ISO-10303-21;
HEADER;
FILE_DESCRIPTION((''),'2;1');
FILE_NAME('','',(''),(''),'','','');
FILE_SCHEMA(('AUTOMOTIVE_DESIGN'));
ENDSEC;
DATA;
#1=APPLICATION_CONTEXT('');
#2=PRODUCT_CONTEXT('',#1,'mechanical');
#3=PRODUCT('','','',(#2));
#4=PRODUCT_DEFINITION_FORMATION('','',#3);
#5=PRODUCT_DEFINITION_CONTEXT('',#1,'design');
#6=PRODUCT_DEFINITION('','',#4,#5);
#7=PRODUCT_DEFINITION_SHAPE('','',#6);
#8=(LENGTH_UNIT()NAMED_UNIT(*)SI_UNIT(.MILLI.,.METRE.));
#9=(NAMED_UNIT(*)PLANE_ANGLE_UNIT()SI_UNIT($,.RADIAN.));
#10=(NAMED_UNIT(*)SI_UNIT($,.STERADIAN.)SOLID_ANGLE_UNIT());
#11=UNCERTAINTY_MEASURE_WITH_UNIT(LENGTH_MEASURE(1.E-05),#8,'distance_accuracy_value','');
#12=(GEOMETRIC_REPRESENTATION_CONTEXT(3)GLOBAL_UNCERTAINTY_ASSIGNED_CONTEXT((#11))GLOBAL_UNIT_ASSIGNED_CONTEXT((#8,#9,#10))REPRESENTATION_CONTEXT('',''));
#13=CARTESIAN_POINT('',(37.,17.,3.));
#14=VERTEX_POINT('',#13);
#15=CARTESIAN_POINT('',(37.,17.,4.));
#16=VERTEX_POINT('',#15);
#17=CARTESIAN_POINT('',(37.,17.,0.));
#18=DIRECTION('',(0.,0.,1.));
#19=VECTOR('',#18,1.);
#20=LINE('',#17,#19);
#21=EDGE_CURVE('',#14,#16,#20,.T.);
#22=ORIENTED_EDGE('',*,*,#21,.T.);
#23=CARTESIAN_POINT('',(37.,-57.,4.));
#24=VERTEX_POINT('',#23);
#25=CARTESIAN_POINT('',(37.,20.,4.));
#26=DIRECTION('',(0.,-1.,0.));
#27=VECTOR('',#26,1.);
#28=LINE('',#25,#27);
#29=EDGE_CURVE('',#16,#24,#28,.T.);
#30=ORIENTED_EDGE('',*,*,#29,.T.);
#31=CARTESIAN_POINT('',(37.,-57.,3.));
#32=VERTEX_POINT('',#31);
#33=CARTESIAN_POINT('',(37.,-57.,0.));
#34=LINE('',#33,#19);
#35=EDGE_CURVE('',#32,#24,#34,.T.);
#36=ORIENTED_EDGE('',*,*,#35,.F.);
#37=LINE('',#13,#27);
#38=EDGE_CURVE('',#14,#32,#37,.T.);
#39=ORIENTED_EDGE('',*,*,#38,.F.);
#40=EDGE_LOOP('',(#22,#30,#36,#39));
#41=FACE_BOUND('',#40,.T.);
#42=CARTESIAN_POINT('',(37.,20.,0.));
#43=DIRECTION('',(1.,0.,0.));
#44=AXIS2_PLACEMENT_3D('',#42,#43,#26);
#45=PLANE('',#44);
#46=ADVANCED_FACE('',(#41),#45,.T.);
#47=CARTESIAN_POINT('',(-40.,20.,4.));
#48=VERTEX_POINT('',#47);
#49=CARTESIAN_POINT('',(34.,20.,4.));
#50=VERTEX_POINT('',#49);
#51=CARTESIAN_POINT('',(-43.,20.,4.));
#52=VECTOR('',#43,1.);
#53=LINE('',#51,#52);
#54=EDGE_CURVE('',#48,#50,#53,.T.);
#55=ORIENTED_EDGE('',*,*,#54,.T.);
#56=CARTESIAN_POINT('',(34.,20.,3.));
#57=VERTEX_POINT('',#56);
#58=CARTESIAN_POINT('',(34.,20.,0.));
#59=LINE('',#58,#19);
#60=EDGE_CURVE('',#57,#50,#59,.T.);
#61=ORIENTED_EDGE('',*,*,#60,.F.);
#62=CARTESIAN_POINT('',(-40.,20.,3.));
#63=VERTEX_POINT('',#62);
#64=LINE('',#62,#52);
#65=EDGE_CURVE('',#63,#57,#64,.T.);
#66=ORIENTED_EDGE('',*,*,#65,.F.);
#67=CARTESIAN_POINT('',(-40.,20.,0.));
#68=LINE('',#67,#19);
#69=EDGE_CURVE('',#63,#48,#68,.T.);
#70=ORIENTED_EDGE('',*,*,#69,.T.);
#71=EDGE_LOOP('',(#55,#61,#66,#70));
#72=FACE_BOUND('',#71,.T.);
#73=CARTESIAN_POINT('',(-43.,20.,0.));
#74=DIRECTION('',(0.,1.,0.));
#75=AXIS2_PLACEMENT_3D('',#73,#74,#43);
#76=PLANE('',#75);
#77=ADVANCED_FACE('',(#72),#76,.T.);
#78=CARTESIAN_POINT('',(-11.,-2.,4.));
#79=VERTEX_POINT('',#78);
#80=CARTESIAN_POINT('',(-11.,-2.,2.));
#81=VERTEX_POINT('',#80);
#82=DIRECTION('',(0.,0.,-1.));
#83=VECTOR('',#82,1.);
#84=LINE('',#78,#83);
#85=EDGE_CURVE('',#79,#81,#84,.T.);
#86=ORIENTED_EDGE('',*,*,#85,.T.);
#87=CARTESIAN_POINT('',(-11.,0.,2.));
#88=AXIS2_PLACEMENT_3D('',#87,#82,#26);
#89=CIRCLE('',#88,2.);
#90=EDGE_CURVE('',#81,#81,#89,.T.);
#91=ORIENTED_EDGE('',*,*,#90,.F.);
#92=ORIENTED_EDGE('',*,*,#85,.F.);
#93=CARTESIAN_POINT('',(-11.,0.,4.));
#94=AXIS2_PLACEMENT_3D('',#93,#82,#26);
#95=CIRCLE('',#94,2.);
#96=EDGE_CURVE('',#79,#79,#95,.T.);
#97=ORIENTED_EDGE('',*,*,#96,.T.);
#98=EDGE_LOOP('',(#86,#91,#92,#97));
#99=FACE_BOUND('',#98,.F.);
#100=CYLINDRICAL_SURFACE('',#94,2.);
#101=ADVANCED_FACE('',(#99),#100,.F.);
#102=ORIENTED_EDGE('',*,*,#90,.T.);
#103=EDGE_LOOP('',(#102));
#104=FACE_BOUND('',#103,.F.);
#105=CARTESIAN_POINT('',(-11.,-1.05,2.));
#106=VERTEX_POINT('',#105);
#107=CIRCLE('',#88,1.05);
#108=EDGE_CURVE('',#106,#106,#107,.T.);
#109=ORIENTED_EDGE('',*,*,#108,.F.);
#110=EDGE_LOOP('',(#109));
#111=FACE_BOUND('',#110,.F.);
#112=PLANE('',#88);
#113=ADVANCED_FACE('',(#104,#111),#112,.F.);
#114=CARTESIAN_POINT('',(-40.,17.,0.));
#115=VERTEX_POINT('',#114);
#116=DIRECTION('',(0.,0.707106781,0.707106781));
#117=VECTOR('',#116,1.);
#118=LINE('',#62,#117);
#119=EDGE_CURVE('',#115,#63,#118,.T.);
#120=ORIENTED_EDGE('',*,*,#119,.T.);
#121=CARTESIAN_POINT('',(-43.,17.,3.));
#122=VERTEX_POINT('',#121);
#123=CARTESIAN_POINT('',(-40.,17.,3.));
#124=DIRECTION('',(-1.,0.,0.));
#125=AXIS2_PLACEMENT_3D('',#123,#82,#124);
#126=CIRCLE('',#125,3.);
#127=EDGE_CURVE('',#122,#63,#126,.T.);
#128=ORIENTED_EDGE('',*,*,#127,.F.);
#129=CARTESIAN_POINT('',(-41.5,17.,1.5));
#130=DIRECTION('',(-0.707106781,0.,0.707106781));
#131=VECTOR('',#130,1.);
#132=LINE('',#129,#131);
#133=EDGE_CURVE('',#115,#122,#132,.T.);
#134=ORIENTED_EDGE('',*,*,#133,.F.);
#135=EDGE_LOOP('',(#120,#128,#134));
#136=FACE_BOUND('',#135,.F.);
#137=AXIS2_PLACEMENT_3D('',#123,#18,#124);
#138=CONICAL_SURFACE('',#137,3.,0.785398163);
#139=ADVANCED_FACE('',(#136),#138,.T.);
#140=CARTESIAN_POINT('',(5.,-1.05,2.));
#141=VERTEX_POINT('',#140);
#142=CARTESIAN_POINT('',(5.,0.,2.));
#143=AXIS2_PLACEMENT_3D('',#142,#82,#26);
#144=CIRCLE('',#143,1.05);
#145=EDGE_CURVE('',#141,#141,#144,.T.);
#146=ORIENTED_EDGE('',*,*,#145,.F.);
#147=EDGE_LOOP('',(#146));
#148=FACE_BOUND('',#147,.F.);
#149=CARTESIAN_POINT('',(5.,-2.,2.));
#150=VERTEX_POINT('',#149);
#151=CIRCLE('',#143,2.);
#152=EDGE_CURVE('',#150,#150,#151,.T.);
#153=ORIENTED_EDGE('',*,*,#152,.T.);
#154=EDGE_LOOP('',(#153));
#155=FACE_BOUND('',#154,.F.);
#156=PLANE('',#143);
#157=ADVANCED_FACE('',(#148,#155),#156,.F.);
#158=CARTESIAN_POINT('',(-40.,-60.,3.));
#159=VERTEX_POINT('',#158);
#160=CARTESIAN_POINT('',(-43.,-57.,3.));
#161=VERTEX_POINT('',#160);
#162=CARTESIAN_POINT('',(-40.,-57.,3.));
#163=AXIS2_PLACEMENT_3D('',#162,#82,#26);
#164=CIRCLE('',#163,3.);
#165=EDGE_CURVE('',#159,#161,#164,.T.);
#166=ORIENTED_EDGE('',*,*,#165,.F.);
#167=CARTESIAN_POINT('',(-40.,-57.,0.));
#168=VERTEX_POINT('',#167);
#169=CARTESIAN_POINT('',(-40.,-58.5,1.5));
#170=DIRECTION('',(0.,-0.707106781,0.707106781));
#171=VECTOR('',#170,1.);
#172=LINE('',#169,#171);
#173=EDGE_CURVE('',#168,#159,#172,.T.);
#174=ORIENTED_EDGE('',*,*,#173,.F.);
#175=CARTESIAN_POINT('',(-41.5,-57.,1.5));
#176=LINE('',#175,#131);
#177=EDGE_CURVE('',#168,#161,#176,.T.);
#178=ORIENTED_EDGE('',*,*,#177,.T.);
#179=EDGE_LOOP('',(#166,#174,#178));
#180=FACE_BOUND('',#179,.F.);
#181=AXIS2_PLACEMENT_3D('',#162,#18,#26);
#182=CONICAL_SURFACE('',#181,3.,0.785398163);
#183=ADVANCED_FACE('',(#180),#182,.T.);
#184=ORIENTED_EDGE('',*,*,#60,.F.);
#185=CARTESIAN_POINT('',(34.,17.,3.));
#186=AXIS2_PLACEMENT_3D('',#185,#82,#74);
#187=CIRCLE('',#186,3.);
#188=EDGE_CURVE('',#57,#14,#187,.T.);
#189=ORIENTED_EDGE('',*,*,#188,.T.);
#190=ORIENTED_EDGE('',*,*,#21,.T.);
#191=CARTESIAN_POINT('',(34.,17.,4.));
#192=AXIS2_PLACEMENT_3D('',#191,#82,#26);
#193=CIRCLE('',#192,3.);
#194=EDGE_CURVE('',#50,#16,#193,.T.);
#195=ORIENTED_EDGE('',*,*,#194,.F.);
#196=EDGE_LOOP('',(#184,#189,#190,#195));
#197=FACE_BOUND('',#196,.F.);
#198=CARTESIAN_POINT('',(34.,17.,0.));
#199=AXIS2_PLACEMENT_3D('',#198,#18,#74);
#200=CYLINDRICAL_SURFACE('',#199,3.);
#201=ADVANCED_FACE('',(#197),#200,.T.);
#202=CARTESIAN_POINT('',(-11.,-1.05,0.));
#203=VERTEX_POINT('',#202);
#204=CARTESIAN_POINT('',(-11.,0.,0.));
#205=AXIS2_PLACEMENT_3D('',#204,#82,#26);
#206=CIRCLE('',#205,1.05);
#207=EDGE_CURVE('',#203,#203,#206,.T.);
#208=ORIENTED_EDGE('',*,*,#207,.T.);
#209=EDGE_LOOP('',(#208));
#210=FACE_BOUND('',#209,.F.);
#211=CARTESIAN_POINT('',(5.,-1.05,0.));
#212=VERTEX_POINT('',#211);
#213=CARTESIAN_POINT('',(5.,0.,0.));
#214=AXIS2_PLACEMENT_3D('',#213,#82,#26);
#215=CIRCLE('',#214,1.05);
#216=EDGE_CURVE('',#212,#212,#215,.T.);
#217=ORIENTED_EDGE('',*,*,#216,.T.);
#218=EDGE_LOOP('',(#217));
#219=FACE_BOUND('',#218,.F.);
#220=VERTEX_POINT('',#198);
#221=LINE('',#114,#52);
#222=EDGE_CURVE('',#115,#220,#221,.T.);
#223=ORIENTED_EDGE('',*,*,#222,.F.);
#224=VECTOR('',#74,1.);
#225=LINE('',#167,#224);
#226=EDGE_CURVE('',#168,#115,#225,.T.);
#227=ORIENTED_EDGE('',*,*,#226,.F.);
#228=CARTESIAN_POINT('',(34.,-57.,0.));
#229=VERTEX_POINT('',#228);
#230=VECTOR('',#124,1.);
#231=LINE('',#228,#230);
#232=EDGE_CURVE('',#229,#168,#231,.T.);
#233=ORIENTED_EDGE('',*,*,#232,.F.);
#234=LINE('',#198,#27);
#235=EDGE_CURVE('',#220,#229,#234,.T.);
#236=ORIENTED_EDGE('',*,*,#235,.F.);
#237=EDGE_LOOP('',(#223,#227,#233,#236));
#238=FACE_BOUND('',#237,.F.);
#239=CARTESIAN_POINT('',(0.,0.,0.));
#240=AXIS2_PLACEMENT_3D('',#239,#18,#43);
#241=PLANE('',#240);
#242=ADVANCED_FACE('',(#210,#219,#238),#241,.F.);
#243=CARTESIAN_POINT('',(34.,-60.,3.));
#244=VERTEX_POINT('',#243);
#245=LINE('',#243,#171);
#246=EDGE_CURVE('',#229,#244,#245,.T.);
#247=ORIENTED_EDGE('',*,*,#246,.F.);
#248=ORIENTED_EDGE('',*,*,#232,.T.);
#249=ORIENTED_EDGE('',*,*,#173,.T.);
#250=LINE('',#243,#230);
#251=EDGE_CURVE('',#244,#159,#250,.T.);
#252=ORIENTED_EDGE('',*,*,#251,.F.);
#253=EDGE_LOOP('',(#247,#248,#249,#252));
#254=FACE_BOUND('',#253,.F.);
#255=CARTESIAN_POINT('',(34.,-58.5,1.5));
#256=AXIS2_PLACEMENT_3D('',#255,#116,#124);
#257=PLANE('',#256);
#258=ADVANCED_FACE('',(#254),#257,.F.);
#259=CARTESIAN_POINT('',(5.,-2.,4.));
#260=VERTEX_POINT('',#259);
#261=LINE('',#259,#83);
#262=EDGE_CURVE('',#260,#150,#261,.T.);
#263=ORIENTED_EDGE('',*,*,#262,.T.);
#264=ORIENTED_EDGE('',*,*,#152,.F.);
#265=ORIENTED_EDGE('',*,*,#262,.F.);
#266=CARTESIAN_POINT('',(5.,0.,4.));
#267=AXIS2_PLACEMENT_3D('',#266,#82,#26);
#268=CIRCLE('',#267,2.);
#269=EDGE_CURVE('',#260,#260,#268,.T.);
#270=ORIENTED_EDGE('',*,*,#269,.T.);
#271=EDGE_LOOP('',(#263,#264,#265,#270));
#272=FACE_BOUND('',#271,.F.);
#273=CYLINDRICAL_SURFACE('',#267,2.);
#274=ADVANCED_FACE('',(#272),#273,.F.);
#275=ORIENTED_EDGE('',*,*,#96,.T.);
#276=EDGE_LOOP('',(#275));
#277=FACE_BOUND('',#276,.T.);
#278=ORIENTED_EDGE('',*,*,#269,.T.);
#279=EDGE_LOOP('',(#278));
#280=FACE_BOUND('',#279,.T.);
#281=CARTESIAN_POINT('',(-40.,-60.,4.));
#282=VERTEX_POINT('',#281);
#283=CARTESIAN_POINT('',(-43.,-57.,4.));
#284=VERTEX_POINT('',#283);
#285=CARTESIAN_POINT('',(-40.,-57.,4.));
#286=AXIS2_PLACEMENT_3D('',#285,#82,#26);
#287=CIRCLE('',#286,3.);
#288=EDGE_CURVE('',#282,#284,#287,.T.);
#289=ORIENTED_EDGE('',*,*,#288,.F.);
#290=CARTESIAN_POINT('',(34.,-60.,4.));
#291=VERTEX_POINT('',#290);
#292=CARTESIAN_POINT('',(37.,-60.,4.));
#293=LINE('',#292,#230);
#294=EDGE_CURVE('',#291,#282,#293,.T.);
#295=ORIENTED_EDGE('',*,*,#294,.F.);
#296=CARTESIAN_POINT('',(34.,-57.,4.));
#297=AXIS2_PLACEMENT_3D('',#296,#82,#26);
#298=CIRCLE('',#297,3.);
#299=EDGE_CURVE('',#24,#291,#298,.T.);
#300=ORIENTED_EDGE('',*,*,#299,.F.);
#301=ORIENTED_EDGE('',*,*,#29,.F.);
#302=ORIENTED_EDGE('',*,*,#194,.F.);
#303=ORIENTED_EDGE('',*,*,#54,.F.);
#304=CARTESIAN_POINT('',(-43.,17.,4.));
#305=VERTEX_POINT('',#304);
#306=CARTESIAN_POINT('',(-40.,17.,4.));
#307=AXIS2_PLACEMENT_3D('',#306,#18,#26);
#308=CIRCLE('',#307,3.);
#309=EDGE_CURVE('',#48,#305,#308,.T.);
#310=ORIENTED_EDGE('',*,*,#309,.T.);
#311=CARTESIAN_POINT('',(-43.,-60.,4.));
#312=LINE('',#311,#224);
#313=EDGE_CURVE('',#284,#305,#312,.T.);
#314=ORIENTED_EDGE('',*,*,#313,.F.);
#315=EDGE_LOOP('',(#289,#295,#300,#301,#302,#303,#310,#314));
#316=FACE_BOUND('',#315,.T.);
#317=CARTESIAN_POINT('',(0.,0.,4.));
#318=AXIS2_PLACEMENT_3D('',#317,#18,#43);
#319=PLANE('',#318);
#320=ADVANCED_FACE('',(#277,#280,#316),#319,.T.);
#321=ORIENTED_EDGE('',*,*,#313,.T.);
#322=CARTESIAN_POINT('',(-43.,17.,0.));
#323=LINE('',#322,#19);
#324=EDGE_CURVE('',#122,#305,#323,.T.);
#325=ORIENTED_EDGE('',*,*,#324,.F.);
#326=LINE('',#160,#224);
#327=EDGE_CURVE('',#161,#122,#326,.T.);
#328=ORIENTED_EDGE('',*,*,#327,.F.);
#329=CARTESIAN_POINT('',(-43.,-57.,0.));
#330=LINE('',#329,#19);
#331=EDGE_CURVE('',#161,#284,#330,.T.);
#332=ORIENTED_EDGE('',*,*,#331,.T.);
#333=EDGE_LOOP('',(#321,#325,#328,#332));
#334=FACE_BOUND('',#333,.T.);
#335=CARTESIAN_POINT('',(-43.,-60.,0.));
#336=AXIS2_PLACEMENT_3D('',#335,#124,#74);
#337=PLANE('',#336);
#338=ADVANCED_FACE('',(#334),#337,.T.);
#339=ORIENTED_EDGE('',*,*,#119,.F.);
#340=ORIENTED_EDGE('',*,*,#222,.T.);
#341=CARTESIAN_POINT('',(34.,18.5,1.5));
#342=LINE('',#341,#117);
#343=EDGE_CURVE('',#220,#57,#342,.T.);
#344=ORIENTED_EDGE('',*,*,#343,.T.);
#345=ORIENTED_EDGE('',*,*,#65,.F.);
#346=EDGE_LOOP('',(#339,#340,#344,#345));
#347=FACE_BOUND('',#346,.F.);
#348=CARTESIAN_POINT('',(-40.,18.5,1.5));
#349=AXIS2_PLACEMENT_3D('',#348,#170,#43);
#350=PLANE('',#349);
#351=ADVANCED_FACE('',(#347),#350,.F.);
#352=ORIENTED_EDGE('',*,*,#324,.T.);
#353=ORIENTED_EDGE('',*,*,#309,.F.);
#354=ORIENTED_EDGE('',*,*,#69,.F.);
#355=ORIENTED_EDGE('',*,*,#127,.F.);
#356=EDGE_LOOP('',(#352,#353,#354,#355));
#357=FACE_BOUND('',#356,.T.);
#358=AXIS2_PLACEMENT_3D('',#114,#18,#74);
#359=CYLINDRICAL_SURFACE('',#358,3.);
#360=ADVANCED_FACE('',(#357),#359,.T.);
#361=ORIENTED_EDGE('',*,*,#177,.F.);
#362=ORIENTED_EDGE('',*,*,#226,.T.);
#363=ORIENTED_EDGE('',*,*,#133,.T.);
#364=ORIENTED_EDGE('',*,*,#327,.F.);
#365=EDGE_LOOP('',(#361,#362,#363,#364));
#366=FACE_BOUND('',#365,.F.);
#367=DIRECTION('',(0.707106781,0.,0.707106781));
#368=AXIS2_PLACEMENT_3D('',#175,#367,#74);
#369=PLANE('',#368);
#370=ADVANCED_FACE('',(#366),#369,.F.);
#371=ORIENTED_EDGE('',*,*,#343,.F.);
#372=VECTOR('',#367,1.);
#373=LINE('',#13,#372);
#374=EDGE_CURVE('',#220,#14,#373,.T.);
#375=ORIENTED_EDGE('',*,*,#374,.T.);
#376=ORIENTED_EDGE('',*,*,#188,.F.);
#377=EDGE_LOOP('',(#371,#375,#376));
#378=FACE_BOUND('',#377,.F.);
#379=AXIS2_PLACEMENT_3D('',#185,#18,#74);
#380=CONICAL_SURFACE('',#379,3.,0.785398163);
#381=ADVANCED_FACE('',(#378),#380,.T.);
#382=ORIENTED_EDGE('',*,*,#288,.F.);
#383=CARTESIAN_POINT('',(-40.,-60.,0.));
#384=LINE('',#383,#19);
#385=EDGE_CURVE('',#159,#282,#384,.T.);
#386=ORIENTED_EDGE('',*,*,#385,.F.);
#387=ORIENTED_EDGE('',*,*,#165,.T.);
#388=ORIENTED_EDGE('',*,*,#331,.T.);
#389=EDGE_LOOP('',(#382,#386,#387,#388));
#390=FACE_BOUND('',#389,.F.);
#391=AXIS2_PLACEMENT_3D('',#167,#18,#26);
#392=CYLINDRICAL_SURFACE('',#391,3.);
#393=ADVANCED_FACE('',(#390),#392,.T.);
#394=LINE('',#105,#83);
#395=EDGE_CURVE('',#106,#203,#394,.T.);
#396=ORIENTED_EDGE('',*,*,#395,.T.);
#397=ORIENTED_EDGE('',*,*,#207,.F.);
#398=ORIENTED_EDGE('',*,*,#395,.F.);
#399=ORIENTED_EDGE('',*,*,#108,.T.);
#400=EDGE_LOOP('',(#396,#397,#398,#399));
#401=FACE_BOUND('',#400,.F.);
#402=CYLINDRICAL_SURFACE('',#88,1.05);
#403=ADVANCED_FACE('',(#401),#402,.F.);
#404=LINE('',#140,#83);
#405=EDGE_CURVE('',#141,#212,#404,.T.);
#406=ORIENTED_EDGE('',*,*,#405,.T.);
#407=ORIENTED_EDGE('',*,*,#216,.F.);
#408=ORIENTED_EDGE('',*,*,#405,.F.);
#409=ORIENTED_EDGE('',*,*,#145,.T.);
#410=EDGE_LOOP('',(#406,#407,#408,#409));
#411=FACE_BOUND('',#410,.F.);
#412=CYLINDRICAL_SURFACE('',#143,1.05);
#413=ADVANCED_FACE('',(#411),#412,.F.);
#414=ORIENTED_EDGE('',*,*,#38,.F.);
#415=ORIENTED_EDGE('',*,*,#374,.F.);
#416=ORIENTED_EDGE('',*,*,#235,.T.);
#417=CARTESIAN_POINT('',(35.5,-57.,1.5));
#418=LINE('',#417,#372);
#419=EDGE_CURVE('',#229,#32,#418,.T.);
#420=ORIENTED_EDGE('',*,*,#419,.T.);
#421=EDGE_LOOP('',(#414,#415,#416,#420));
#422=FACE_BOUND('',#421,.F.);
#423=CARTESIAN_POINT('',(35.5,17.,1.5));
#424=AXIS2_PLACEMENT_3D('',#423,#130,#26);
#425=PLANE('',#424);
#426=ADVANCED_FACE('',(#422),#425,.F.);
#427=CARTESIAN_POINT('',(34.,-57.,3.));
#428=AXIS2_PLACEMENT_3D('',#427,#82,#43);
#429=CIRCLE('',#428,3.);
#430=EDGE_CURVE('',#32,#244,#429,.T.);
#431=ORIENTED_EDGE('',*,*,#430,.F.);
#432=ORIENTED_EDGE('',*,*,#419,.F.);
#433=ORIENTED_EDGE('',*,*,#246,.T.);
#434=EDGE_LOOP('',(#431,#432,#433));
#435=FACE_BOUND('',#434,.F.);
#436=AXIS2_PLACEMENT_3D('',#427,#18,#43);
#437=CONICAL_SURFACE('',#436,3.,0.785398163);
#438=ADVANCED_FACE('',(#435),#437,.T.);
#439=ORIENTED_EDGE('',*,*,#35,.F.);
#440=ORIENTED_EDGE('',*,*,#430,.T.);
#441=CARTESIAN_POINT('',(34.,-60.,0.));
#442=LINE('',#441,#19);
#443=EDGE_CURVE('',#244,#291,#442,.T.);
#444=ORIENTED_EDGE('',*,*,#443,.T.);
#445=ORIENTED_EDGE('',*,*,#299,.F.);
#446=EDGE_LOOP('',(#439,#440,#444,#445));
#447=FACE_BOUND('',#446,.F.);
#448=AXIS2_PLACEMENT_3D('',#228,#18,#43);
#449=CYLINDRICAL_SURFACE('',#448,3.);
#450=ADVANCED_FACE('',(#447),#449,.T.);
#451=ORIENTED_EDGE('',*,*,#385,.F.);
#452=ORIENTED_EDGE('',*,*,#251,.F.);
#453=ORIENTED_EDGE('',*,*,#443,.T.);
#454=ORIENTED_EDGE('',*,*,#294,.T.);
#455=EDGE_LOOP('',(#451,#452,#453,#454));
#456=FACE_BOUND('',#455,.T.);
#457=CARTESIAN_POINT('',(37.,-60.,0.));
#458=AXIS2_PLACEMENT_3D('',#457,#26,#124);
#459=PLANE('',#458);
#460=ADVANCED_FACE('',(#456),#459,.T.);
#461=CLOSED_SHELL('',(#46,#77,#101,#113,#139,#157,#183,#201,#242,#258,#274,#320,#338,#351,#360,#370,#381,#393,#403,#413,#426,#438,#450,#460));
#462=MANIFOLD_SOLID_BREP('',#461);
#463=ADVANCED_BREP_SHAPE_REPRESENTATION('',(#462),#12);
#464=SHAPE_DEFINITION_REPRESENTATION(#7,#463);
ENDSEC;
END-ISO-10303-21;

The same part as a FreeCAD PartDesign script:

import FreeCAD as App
import Part
import Sketcher

V = App.Vector
Q = App.Units.Quantity


def edges_at(feature, points):
    """Names of the edges that pass closest to the given points."""
    edges = feature.Shape.Edges
    near = lambda p: min(range(len(edges)), key=lambda i: edges[i].distToShape(Part.Vertex(*p))[0])
    return sorted({f"Edge{near(p) + 1}" for p in points})


def add_polygon(sketch, points):
    """Adds a closed chain of lines whose ends are joined by coincident constraints."""
    first, n = sketch.GeometryCount, len(points)
    for a, b in zip(points, points[1:] + points[:1]):
        sketch.addGeometry(Part.LineSegment(App.Vector(*a, 0), App.Vector(*b, 0)), False)
    for i in range(n):
        sketch.addConstraint(Sketcher.Constraint("Coincident", first + i, 2, first + (i + 1) % n, 1))

doc = App.newDocument("Part")
body = doc.addObject("PartDesign::Body", "Body")

sketch1 = doc.addObject("Sketcher::SketchObject", "Sketch")
body.addObject(sketch1)
sketch1.AttachmentSupport = (doc.XY_Plane, [""])
sketch1.MapMode = "FlatFace"
add_polygon(sketch1, [(37, 20), (-43, 20), (-43, -60), (37, -60)])
sketch1.addConstraint([
    Sketcher.Constraint("Horizontal", 0),
    Sketcher.Constraint("Vertical", 1),
    Sketcher.Constraint("Horizontal", 2),
    Sketcher.Constraint("Vertical", 3),
    Sketcher.Constraint("Equal", 2, 1),
    Sketcher.Constraint("DistanceX", 0, 2, 0, 1, Q("80 mm")),
    Sketcher.Constraint("DistanceY", -1, 1, 0, 2, Q("20 mm")),
    Sketcher.Constraint("DistanceX", 0, 2, -1, 1, Q("43 mm")),
])
pad1 = doc.addObject("PartDesign::Pad", "Pad")
body.addObject(pad1)
pad1.Profile = sketch1
pad1.Length = 4
doc.recompute()

fillet = doc.addObject("PartDesign::Fillet", "Fillet")
body.addObject(fillet)
fillet.Base = (pad1, edges_at(pad1, [
    (-43, 20, 2),
    (-43, -60, 2),
    (37, -60, 2),
    (37, 20, 2),
]))
fillet.Radius = 3

sketch2 = doc.addObject("Sketcher::SketchObject", "Sketch001")
body.addObject(sketch2)
sketch2.AttachmentSupport = (doc.XY_Plane, [""])
sketch2.MapMode = "FlatFace"
sketch2.AttachmentOffset = App.Placement(V(0, 0, 4), App.Rotation())
sketch2.addGeometry([
    Part.Circle(V(-11, 0, 0), V(0, 0, 1), 1.05),
    Part.Circle(V(5, 0, 0), V(0, 0, 1), 1.05),
], False)
sketch2.addConstraint([
    Sketcher.Constraint("Equal", 0, 1),
    Sketcher.Constraint("PointOnObject", 0, 3, -1),
    Sketcher.Constraint("PointOnObject", 1, 3, -1),
    Sketcher.Constraint("Diameter", 0, Q("2.1 mm")),
    Sketcher.Constraint("DistanceX", 0, 3, -1, 1, Q("11 mm")),
    Sketcher.Constraint("DistanceX", -1, 1, 1, 3, Q("5 mm")),
])
doc.recompute()
hole = doc.addObject("PartDesign::Hole", "Hole")
body.addObject(hole)
hole.Profile = sketch2
hole.ThreadType = "None"
hole.Diameter = 2.1
hole.DepthType = "ThroughAll"
hole.HoleCutType = "Counterbore"
hole.HoleCutDiameter = 4
hole.HoleCutDepth = 2
doc.recompute()

chamfer = doc.addObject("PartDesign::Chamfer", "Chamfer")
body.addObject(chamfer)
chamfer.Base = (hole, edges_at(hole, [
    (-43, -20, 0),
    (-42.121, 19.121, 0),
    (-3, 20, 0),
    (36.121, 19.121, 0),
    (37, -20, 0),
    (36.121, -59.121, 0),
    (-3, -60, 0),
    (-42.121, -59.121, 0),
]))
chamfer.Size = 3

doc.recompute()
